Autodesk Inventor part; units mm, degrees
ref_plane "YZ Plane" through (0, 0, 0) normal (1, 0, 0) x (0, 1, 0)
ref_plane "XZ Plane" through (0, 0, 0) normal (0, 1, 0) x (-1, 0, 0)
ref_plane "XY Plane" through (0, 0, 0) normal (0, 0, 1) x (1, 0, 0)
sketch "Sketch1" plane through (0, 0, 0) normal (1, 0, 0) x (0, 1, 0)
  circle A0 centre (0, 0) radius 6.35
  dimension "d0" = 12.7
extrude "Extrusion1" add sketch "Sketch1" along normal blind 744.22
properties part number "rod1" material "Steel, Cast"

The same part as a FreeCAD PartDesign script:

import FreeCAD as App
import Part
import Sketcher
Q = App.Units.Quantity

doc = App.newDocument("Part")
body = doc.addObject("PartDesign::Body", "Body")

sketch1 = body.newObject("Sketcher::SketchObject", "Sketch")
sketch1.AttachmentSupport = (doc.getObject("YZ_Plane"), [""])
sketch1.MapMode = "FlatFace"
sketch1.addGeometry(Part.Circle(App.Vector(0, 0, 0), App.Vector(0, 0, 1), 6), False)
sketch1.addConstraint(Sketcher.Constraint("Coincident", 0, 3, -1, 1))
sketch1.addConstraint(Sketcher.Constraint("Diameter", 0, Q("0.5 in")))
pad1 = body.newObject("PartDesign::Pad", "Pad")
pad1.Profile = sketch1
pad1.Length = Q("29.3 in")

doc.recompute()
